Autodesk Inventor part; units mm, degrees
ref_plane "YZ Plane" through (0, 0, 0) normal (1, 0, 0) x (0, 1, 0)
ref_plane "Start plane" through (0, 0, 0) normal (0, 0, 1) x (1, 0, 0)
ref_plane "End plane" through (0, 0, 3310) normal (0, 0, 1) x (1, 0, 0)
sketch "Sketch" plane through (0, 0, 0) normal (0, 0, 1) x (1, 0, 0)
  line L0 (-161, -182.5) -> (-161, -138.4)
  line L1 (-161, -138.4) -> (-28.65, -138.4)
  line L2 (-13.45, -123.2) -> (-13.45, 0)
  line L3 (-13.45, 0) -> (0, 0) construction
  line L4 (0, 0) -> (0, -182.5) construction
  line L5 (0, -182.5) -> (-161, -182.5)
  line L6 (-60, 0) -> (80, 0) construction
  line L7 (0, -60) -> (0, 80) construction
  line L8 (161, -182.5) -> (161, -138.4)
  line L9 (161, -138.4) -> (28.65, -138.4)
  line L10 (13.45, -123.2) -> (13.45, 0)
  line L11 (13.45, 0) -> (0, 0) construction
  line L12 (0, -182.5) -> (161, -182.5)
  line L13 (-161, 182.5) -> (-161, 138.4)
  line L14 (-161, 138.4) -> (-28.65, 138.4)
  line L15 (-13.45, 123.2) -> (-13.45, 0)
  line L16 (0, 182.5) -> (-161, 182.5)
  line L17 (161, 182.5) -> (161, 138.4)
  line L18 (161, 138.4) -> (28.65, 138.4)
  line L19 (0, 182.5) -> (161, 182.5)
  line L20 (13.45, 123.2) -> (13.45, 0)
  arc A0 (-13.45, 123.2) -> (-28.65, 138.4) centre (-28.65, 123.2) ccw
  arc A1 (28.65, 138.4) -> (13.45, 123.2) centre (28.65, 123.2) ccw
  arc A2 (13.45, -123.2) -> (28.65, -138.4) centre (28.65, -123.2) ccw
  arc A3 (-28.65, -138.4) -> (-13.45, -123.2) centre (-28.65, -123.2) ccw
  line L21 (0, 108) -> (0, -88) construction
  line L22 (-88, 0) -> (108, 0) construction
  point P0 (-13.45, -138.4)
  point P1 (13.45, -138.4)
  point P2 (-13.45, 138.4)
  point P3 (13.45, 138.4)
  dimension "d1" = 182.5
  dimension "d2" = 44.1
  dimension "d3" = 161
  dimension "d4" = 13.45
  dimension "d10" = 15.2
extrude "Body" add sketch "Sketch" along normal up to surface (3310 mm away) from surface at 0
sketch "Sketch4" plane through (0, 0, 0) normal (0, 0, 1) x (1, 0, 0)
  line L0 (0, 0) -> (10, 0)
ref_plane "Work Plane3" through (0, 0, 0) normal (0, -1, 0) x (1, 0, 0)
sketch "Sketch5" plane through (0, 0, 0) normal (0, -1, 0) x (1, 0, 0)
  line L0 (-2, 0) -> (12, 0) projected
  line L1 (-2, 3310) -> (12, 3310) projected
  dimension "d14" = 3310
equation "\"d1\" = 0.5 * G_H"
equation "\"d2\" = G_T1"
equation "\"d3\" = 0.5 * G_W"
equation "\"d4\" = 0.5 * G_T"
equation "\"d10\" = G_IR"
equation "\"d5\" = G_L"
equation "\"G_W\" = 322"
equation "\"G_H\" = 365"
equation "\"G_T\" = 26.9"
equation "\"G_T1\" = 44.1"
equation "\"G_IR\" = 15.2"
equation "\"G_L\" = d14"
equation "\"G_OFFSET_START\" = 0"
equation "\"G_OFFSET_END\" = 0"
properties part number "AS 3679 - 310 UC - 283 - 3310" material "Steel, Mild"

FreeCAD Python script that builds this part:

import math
import FreeCAD as App
import Part
import Sketcher
from FreeCAD import Vector
Q = App.Units.Quantity

doc = App.newDocument("Part")
body = doc.addObject("PartDesign::Body", "Body")

sketch1 = doc.addObject("Sketcher::SketchObject", "Sketch")
body.addObject(sketch1)
sketch1.AttachmentSupport = (doc.XY_Plane, [""])
sketch1.MapMode = "FlatFace"
sketch1.addGeometry([
    Part.LineSegment(Vector(-161, -138, 0), Vector(-161, -182, 0)),
    Part.LineSegment(Vector(-161, -182, 0), Vector(161, -182, 0)),
    Part.LineSegment(Vector(161, -182, 0), Vector(161, -138, 0)),
    Part.LineSegment(Vector(161, -138, 0), Vector(29, -138, 0)),
    Part.ArcOfCircle(Part.Circle(Vector(29, -123, 0), Vector(0, 0, 1), 15), math.radians(180), math.radians(270)),
    Part.LineSegment(Vector(13, -123, 0), Vector(13, 123, 0)),
    Part.ArcOfCircle(Part.Circle(Vector(29, 123, 0), Vector(0, 0, 1), 15), math.radians(90), math.radians(180)),
    Part.LineSegment(Vector(29, 138, 0), Vector(161, 138, 0)),
    Part.LineSegment(Vector(161, 138, 0), Vector(161, 182, 0)),
    Part.LineSegment(Vector(161, 182, 0), Vector(-161, 182, 0)),
    Part.LineSegment(Vector(-161, 182, 0), Vector(-161, 138, 0)),
    Part.LineSegment(Vector(-161, 138, 0), Vector(-29, 138, 0)),
    Part.ArcOfCircle(Part.Circle(Vector(-29, 123, 0), Vector(0, 0, 1), 15), math.radians(0), math.radians(90)),
    Part.LineSegment(Vector(-13, 123, 0), Vector(-13, -123, 0)),
    Part.ArcOfCircle(Part.Circle(Vector(-29, -123, 0), Vector(0, 0, 1), 15), math.radians(-90), math.radians(0)),
    Part.LineSegment(Vector(-29, -138, 0), Vector(-161, -138, 0)),
], False)
sketch1.addConstraint([
    Sketcher.Constraint("Coincident", 0, 2, 1, 1),
    Sketcher.Constraint("Coincident", 1, 2, 2, 1),
    Sketcher.Constraint("Coincident", 2, 2, 3, 1),
    Sketcher.Constraint("Tangent", 3, 2, 4, 2),
    Sketcher.Constraint("Tangent", 4, 1, 5, 1),
    Sketcher.Constraint("Tangent", 5, 2, 6, 2),
    Sketcher.Constraint("Tangent", 6, 1, 7, 1),
    Sketcher.Constraint("Coincident", 7, 2, 8, 1),
    Sketcher.Constraint("Coincident", 8, 2, 9, 1),
    Sketcher.Constraint("Coincident", 9, 2, 10, 1),
    Sketcher.Constraint("Coincident", 10, 2, 11, 1),
    Sketcher.Constraint("Tangent", 11, 2, 12, 2),
    Sketcher.Constraint("Tangent", 12, 1, 13, 1),
    Sketcher.Constraint("Tangent", 13, 2, 14, 2),
    Sketcher.Constraint("Tangent", 14, 1, 15, 1),
    Sketcher.Constraint("Coincident", 15, 2, 0, 1),
    Sketcher.Constraint("Vertical", 0),
    Sketcher.Constraint("Horizontal", 1),
    Sketcher.Constraint("Vertical", 2),
    Sketcher.Constraint("Horizontal", 3),
    Sketcher.Constraint("Vertical", 5),
    Sketcher.Constraint("Horizontal", 7),
    Sketcher.Constraint("Vertical", 8),
    Sketcher.Constraint("Horizontal", 9),
    Sketcher.Constraint("Vertical", 10),
    Sketcher.Constraint("Horizontal", 11),
    Sketcher.Constraint("Vertical", 13),
    Sketcher.Constraint("Horizontal", 15),
    Sketcher.Constraint("Equal", 4, 6),
    Sketcher.Constraint("Equal", 6, 12),
    Sketcher.Constraint("Equal", 12, 14),
    Sketcher.Constraint("Symmetric", 4, 3, 12, 3, -1, 1),
    Sketcher.Constraint("Symmetric", 0, 2, 8, 2, -1, 1),
    Sketcher.Constraint("Symmetric", 7, 2, 10, 2, -2),
    Sketcher.Constraint("Symmetric", 2, 2, 15, 2, -2),
    Sketcher.Constraint("Radius", 4, Q("15.2 mm")),
    Sketcher.Constraint("DistanceY", 0, 2, 0, 1, Q("44.1 mm")),
    Sketcher.Constraint("DistanceX", 0, 2, -1, 1, Q("161 mm")),
    Sketcher.Constraint("DistanceY", 0, 2, -1, 1, Q("182.5 mm")),
    Sketcher.Constraint("DistanceX", -1, 1, 4, 1, Q("13.45 mm")),
])
pad1 = doc.addObject("PartDesign::Pad", "Pad")
body.addObject(pad1)
pad1.Profile = sketch1
pad1.Length = 3310

doc.recompute()
